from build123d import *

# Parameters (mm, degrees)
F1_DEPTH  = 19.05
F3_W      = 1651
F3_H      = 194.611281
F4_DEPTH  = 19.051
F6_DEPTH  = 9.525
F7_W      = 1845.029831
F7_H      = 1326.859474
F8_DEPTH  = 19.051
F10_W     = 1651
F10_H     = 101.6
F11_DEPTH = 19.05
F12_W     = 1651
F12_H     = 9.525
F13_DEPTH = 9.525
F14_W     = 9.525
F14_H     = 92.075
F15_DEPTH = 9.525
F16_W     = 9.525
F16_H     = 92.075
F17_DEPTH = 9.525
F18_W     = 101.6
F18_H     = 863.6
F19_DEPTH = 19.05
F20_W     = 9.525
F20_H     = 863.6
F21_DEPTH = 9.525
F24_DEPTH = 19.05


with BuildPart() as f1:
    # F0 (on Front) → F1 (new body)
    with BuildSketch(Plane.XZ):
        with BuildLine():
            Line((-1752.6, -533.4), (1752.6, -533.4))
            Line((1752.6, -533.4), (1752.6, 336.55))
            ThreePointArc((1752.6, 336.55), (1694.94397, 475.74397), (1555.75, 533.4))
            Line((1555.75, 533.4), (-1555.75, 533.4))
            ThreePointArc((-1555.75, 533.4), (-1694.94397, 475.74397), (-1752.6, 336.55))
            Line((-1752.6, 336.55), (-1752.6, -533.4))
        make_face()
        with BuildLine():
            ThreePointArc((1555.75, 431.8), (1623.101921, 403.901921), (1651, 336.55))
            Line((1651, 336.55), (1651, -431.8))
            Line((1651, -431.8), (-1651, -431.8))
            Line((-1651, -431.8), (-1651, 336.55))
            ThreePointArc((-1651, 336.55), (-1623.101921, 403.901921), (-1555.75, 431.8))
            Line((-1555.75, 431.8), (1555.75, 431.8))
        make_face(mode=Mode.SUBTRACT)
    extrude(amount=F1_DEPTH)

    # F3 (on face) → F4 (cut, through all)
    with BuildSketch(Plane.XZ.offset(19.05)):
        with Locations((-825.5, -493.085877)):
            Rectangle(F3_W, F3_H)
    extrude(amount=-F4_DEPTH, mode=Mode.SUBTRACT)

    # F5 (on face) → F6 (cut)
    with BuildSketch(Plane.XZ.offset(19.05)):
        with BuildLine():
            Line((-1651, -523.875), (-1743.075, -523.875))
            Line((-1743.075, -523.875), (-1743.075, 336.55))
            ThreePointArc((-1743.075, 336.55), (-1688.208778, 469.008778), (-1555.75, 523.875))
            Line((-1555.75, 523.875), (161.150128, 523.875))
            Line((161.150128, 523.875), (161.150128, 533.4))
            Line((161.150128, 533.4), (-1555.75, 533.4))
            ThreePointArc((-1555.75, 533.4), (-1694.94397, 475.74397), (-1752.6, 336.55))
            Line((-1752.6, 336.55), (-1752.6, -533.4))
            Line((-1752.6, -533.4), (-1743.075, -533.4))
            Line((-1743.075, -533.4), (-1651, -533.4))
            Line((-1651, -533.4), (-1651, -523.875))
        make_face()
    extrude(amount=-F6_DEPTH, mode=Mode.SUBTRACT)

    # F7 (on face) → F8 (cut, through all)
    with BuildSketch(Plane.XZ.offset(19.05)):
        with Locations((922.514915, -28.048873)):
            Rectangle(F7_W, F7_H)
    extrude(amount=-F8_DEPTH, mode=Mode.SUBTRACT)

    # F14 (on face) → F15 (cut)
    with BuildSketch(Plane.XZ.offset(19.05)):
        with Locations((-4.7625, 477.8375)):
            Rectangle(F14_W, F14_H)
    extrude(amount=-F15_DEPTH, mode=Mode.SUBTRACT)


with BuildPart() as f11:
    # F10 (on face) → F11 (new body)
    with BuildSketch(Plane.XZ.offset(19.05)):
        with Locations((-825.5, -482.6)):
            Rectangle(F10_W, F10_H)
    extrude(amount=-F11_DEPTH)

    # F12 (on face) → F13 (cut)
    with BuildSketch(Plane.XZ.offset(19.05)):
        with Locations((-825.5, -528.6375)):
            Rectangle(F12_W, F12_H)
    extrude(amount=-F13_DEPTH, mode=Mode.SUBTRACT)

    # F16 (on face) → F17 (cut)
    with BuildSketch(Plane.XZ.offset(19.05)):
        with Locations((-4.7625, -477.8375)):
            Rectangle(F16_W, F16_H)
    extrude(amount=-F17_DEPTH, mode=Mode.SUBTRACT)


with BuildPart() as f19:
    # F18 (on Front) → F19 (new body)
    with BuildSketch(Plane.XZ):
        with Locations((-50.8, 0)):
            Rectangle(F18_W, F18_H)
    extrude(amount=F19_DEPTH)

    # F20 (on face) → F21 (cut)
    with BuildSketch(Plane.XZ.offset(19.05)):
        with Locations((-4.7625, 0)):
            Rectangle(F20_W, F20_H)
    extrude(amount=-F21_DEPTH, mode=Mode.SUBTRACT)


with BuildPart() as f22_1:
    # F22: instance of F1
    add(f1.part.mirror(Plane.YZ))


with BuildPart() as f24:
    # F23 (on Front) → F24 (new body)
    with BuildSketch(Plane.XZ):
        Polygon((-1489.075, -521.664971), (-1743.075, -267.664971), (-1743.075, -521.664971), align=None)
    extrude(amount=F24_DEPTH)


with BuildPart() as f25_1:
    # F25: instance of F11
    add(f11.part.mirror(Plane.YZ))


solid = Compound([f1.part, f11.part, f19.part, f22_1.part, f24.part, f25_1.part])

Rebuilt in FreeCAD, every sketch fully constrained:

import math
import FreeCAD as App
import Part
import Sketcher

V = App.Vector
Q = App.Units.Quantity


def add_polygon(sketch, points):
    """Adds a closed chain of lines whose ends are joined by coincident constraints."""
    first, n = sketch.GeometryCount, len(points)
    for a, b in zip(points, points[1:] + points[:1]):
        sketch.addGeometry(Part.LineSegment(App.Vector(*a, 0), App.Vector(*b, 0)), False)
    for i in range(n):
        sketch.addConstraint(Sketcher.Constraint("Coincident", first + i, 2, first + (i + 1) % n, 1))

doc = App.newDocument("Part")
body = doc.addObject("PartDesign::Body", "Body")

sketch1 = body.newObject("Sketcher::SketchObject", "Sketch")
sketch1.AttachmentSupport = (doc.getObject("XZ_Plane"), [""])
sketch1.MapMode = "FlatFace"
sketch1.addGeometry(Part.LineSegment(V(-1752.6, -533.4, 0), V(1752.6, -533.4, 0)), False)
sketch1.addGeometry(Part.LineSegment(V(1752.6, -533.4, 0), V(1752.6, 336.55, 0)), False)
sketch1.addGeometry(Part.ArcOfCircle(Part.Circle(V(1555.75, 336.55, 0), V(0, 0, 1), 196.85), math.radians(0), math.radians(90)), False)
sketch1.addGeometry(Part.LineSegment(V(1555.75, 533.4, 0), V(-1555.75, 533.4, 0)), False)
sketch1.addGeometry(Part.ArcOfCircle(Part.Circle(V(-1555.75, 336.55, 0), V(0, 0, 1), 196.85), math.radians(90), math.radians(180)), False)
sketch1.addGeometry(Part.LineSegment(V(-1752.6, 336.55, 0), V(-1752.6, -533.4, 0)), False)
sketch1.addGeometry(Part.LineSegment(V(-1555.75, 431.8, 0), V(1555.75, 431.8, 0)), False)
sketch1.addGeometry(Part.ArcOfCircle(Part.Circle(V(1555.75, 336.55, 0), V(0, 0, 1), 95.25), math.radians(0), math.radians(90)), False)
sketch1.addGeometry(Part.LineSegment(V(1651, 336.55, 0), V(1651, -431.8, 0)), False)
sketch1.addGeometry(Part.LineSegment(V(1651, -431.8, 0), V(-1651, -431.8, 0)), False)
sketch1.addGeometry(Part.LineSegment(V(-1651, -431.8, 0), V(-1651, 336.55, 0)), False)
sketch1.addGeometry(Part.ArcOfCircle(Part.Circle(V(-1555.75, 336.55, 0), V(0, 0, 1), 95.25), math.radians(90), math.radians(180)), False)
sketch1.addConstraint(Sketcher.Constraint("Coincident", 0, 2, 1, 1))
sketch1.addConstraint(Sketcher.Constraint("Tangent", 1, 2, 2, 1))
sketch1.addConstraint(Sketcher.Constraint("Tangent", 2, 2, 3, 1))
sketch1.addConstraint(Sketcher.Constraint("Tangent", 3, 2, 4, 1))
sketch1.addConstraint(Sketcher.Constraint("Tangent", 4, 2, 5, 1))
sketch1.addConstraint(Sketcher.Constraint("Coincident", 5, 2, 0, 1))
sketch1.addConstraint(Sketcher.Constraint("Tangent", 6, 2, 7, 2))
sketch1.addConstraint(Sketcher.Constraint("Tangent", 7, 1, 8, 1))
sketch1.addConstraint(Sketcher.Constraint("Coincident", 8, 2, 9, 1))
sketch1.addConstraint(Sketcher.Constraint("Coincident", 9, 2, 10, 1))
sketch1.addConstraint(Sketcher.Constraint("Tangent", 10, 2, 11, 2))
sketch1.addConstraint(Sketcher.Constraint("Tangent", 11, 1, 6, 1))
sketch1.addConstraint(Sketcher.Constraint("Horizontal", 0))
sketch1.addConstraint(Sketcher.Constraint("Vertical", 1))
sketch1.addConstraint(Sketcher.Constraint("Horizontal", 3))
sketch1.addConstraint(Sketcher.Constraint("Vertical", 5))
sketch1.addConstraint(Sketcher.Constraint("Horizontal", 6))
sketch1.addConstraint(Sketcher.Constraint("Vertical", 8))
sketch1.addConstraint(Sketcher.Constraint("Horizontal", 9))
sketch1.addConstraint(Sketcher.Constraint("Vertical", 10))
sketch1.addConstraint(Sketcher.Constraint("Coincident", 7, 3, 2, 3))
sketch1.addConstraint(Sketcher.Constraint("Coincident", 11, 3, 4, 3))
sketch1.addConstraint(Sketcher.Constraint("Equal", 2, 4))
sketch1.addConstraint(Sketcher.Constraint("DistanceX", 0, 1, 0, 2, Q("138 in")))
sketch1.addConstraint(Sketcher.Constraint("DistanceX", 9, 2, 9, 1, Q("130 in")))
sketch1.addConstraint(Sketcher.Constraint("Radius", 2, Q("7.75 in")))
sketch1.addConstraint(Sketcher.Constraint("DistanceX", -1, 1, 0, 2, Q("69 in")))
sketch1.addConstraint(Sketcher.Constraint("DistanceY", 0, 2, -1, 1, Q("21 in")))
sketch1.addConstraint(Sketcher.Constraint("DistanceY", -1, 1, 2, 2, Q("21 in")))
sketch1.addConstraint(Sketcher.Constraint("DistanceY", 8, 2, -1, 1, Q("17 in")))
pad1 = body.newObject("PartDesign::Pad", "Pad")
pad1.Profile = sketch1
pad1.Length = Q("0.75 in")

sketch2 = body.newObject("Sketcher::SketchObject", "Sketch001")
sketch2.AttachmentSupport = (doc.getObject("XZ_Plane"), [""])
sketch2.MapMode = "FlatFace"
sketch2.AttachmentOffset = App.Placement(V(0, 0, 0.75 * 25.4), App.Rotation())
add_polygon(sketch2, [(-1651, -395.780237), (-1651, -590.391517), (0, -590.391517), (0, -395.780237)])
sketch2.addConstraint(Sketcher.Constraint("Vertical", 0))
sketch2.addConstraint(Sketcher.Constraint("Horizontal", 1))
sketch2.addConstraint(Sketcher.Constraint("Vertical", 2))
sketch2.addConstraint(Sketcher.Constraint("Horizontal", 3))
sketch2.addConstraint(Sketcher.Constraint("PointOnObject", 1, 2, -2))
sketch2.addConstraint(Sketcher.Constraint("DistanceX", 1, 1, 1, 2, Q("65 in")))
sketch2.addConstraint(Sketcher.Constraint("DistanceY", 0, 2, 0, 1, 194.611281))
sketch2.addConstraint(Sketcher.Constraint("DistanceY", 0, 2, -1, 1, 590.391517))
pocket1 = body.newObject("PartDesign::Pocket", "Pocket")
pocket1.Profile = sketch2
pocket1.Type = "ThroughAll"

sketch3 = body.newObject("Sketcher::SketchObject", "Sketch002")
sketch3.AttachmentSupport = (doc.getObject("XZ_Plane"), [""])
sketch3.MapMode = "FlatFace"
sketch3.AttachmentOffset = App.Placement(V(0, 0, 0.75 * 25.4), App.Rotation())
sketch3.addGeometry(Part.LineSegment(V(-1651, -523.875, 0), V(-1743.075, -523.875, 0)), False)
sketch3.addGeometry(Part.LineSegment(V(-1743.075, -523.875, 0), V(-1743.075, 336.55, 0)), False)
sketch3.addGeometry(Part.ArcOfCircle(Part.Circle(V(-1555.750001, 336.550001, 0), V(0, 0, 1), 187.324999), math.radians(90), math.radians(180)), False)
sketch3.addGeometry(Part.LineSegment(V(-1555.75, 523.875, 0), V(161.150128, 523.875, 0)), False)
sketch3.addGeometry(Part.LineSegment(V(161.150128, 523.875, 0), V(161.150128, 533.4, 0)), False)
sketch3.addGeometry(Part.LineSegment(V(161.150128, 533.4, 0), V(-1555.75, 533.4, 0)), False)
sketch3.addGeometry(Part.ArcOfCircle(Part.Circle(V(-1555.75, 336.55, 0), V(0, 0, 1), 196.85), math.radians(90), math.radians(180)), False)
sketch3.addGeometry(Part.LineSegment(V(-1752.6, 336.55, 0), V(-1752.6, -533.4, 0)), False)
sketch3.addGeometry(Part.LineSegment(V(-1752.6, -533.4, 0), V(-1651, -533.4, 0)), False)
sketch3.addGeometry(Part.LineSegment(V(-1651, -533.4, 0), V(-1651, -523.875, 0)), False)
sketch3.addConstraint(Sketcher.Constraint("Coincident", 0, 2, 1, 1))
sketch3.addConstraint(Sketcher.Constraint("Tangent", 1, 2, 2, 2))
sketch3.addConstraint(Sketcher.Constraint("Tangent", 2, 1, 3, 1))
sketch3.addConstraint(Sketcher.Constraint("Coincident", 3, 2, 4, 1))
sketch3.addConstraint(Sketcher.Constraint("Coincident", 4, 2, 5, 1))
sketch3.addConstraint(Sketcher.Constraint("Tangent", 5, 2, 6, 1))
sketch3.addConstraint(Sketcher.Constraint("Tangent", 6, 2, 7, 1))
sketch3.addConstraint(Sketcher.Constraint("Coincident", 7, 2, 8, 1))
sketch3.addConstraint(Sketcher.Constraint("Coincident", 8, 2, 9, 1))
sketch3.addConstraint(Sketcher.Constraint("Coincident", 9, 2, 0, 1))
sketch3.addConstraint(Sketcher.Constraint("Horizontal", 0))
sketch3.addConstraint(Sketcher.Constraint("Vertical", 1))
sketch3.addConstraint(Sketcher.Constraint("Horizontal", 3))
sketch3.addConstraint(Sketcher.Constraint("Vertical", 4))
sketch3.addConstraint(Sketcher.Constraint("Horizontal", 5))
sketch3.addConstraint(Sketcher.Constraint("Vertical", 7))
sketch3.addConstraint(Sketcher.Constraint("Horizontal", 8))
sketch3.addConstraint(Sketcher.Constraint("Vertical", 9))
sketch3.addConstraint(Sketcher.Constraint("Coincident", 6, 3, 2, 3))
sketch3.addConstraint(Sketcher.Constraint("Equal", 4, 9))
sketch3.addConstraint(Sketcher.Constraint("DistanceX", 8, 1, 8, 2, Q("4 in")))
sketch3.addConstraint(Sketcher.Constraint("Radius", 6, Q("7.75 in")))
sketch3.addConstraint(Sketcher.Constraint("DistanceY", -1, 1, 4, 2, Q("21 in")))
sketch3.addConstraint(Sketcher.Constraint("DistanceX", 6, 2, -1, 1, Q("69 in")))
sketch3.addConstraint(Sketcher.Constraint("DistanceY", 7, 2, -1, 1, Q("21 in")))
sketch3.addConstraint(Sketcher.Constraint("Radius", 2, Q("7.375 in")))
sketch3.addConstraint(Sketcher.Constraint("DistanceX", 3, 1, 3, 2, 1716.900128))
pocket2 = body.newObject("PartDesign::Pocket", "Pocket001")
pocket2.Profile = sketch3
pocket2.Length = Q("0.375 in")

sketch4 = body.newObject("Sketcher::SketchObject", "Sketch003")
sketch4.AttachmentSupport = (doc.getObject("XZ_Plane"), [""])
sketch4.MapMode = "FlatFace"
sketch4.AttachmentOffset = App.Placement(V(0, 0, 0.75 * 25.4), App.Rotation())
add_polygon(sketch4, [(0, 635.380864), (0, -691.47861), (1845.02983, -691.47861), (1845.02983, 635.380864)])
sketch4.addConstraint(Sketcher.Constraint("Vertical", 0))
sketch4.addConstraint(Sketcher.Constraint("Horizontal", 1))
sketch4.addConstraint(Sketcher.Constraint("Vertical", 2))
sketch4.addConstraint(Sketcher.Constraint("Horizontal", 3))
sketch4.addConstraint(Sketcher.Constraint("PointOnObject", 0, 2, -2))
sketch4.addConstraint(Sketcher.Constraint("DistanceX", 1, 1, 1, 2, 1845.029831))
sketch4.addConstraint(Sketcher.Constraint("DistanceY", 0, 2, 0, 1, 1326.859474))
sketch4.addConstraint(Sketcher.Constraint("DistanceY", 0, 2, -1, 1, 691.47861))
pocket3 = body.newObject("PartDesign::Pocket", "Pocket002")
pocket3.Profile = sketch4
pocket3.Type = "ThroughAll"

sketch5 = body.newObject("Sketcher::SketchObject", "Sketch004")
sketch5.AttachmentSupport = (doc.getObject("XZ_Plane"), [""])
sketch5.MapMode = "FlatFace"
sketch5.AttachmentOffset = App.Placement(V(0, 0, 0.75 * 25.4), App.Rotation())
add_polygon(sketch5, [(-9.525, 523.875), (-9.525, 431.8), (0, 431.8), (0, 523.875)])
sketch5.addConstraint(Sketcher.Constraint("Vertical", 0))
sketch5.addConstraint(Sketcher.Constraint("Horizontal", 1))
sketch5.addConstraint(Sketcher.Constraint("Vertical", 2))
sketch5.addConstraint(Sketcher.Constraint("Horizontal", 3))
sketch5.addConstraint(Sketcher.Constraint("PointOnObject", 1, 2, -2))
sketch5.addConstraint(Sketcher.Constraint("DistanceY", -1, 1, 0, 2, Q("17 in")))
sketch5.addConstraint(Sketcher.Constraint("DistanceX", 1, 1, 1, 2, Q("0.375 in")))
sketch5.addConstraint(Sketcher.Constraint("DistanceY", 0, 2, 0, 1, Q("3.625 in")))
pocket4 = body.newObject("PartDesign::Pocket", "Pocket003")
pocket4.Profile = sketch5
pocket4.Length = Q("0.375 in")
body2 = doc.addObject("PartDesign::Body", "Body001")

sketch6 = body2.newObject("Sketcher::SketchObject", "Sketch005")
sketch6.AttachmentSupport = (doc.getObject("XZ_Plane001"), [""])
sketch6.MapMode = "FlatFace"
sketch6.AttachmentOffset = App.Placement(V(0, 0, 0.75 * 25.4), App.Rotation())
add_polygon(sketch6, [(-1651, -431.8), (-1651, -533.4), (0, -533.4), (0, -431.8)])
sketch6.addConstraint(Sketcher.Constraint("Vertical", 0))
sketch6.addConstraint(Sketcher.Constraint("Horizontal", 1))
sketch6.addConstraint(Sketcher.Constraint("Vertical", 2))
sketch6.addConstraint(Sketcher.Constraint("Horizontal", 3))
sketch6.addConstraint(Sketcher.Constraint("PointOnObject", 1, 2, -2))
sketch6.addConstraint(Sketcher.Constraint("DistanceX", 1, 1, 1, 2, Q("65 in")))
sketch6.addConstraint(Sketcher.Constraint("DistanceY", 0, 2, 0, 1, Q("4 in")))
sketch6.addConstraint(Sketcher.Constraint("DistanceY", 0, 2, -1, 1, Q("21 in")))
pad2 = body2.newObject("PartDesign::Pad", "Pad001")
pad2.Profile = sketch6
pad2.Length = Q("0.75 in")
pad2.Reversed = True

sketch7 = body2.newObject("Sketcher::SketchObject", "Sketch006")
sketch7.AttachmentSupport = (doc.getObject("XZ_Plane001"), [""])
sketch7.MapMode = "FlatFace"
sketch7.AttachmentOffset = App.Placement(V(0, 0, 0.75 * 25.4), App.Rotation())
add_polygon(sketch7, [(-1651, -523.875), (-1651, -533.4), (0, -533.4), (0, -523.875)])
sketch7.addConstraint(Sketcher.Constraint("Vertical", 0))
sketch7.addConstraint(Sketcher.Constraint("Horizontal", 1))
sketch7.addConstraint(Sketcher.Constraint("Vertical", 2))
sketch7.addConstraint(Sketcher.Constraint("Horizontal", 3))
sketch7.addConstraint(Sketcher.Constraint("PointOnObject", 1, 2, -2))
sketch7.addConstraint(Sketcher.Constraint("DistanceX", 1, 1, 1, 2, Q("65 in")))
sketch7.addConstraint(Sketcher.Constraint("DistanceY", 0, 2, -1, 1, Q("21 in")))
sketch7.addConstraint(Sketcher.Constraint("DistanceY", 0, 2, 0, 1, Q("0.375 in")))
pocket5 = body2.newObject("PartDesign::Pocket", "Pocket004")
pocket5.Profile = sketch7
pocket5.Length = Q("0.375 in")

sketch8 = body2.newObject("Sketcher::SketchObject", "Sketch007")
sketch8.AttachmentSupport = (doc.getObject("XZ_Plane001"), [""])
sketch8.MapMode = "FlatFace"
sketch8.AttachmentOffset = App.Placement(V(0, 0, 0.75 * 25.4), App.Rotation())
add_polygon(sketch8, [(-9.525, -431.8), (-9.525, -523.875), (0, -523.875), (0, -431.8)])
sketch8.addConstraint(Sketcher.Constraint("Vertical", 0))
sketch8.addConstraint(Sketcher.Constraint("Horizontal", 1))
sketch8.addConstraint(Sketcher.Constraint("Vertical", 2))
sketch8.addConstraint(Sketcher.Constraint("Horizontal", 3))
sketch8.addConstraint(Sketcher.Constraint("PointOnObject", 1, 2, -2))
sketch8.addConstraint(Sketcher.Constraint("DistanceY", 2, 2, -1, 1, Q("17 in")))
sketch8.addConstraint(Sketcher.Constraint("DistanceX", 1, 1, 1, 2, Q("0.375 in")))
sketch8.addConstraint(Sketcher.Constraint("DistanceY", 0, 2, 0, 1, Q("3.625 in")))
pocket6 = body2.newObject("PartDesign::Pocket", "Pocket005")
pocket6.Profile = sketch8
pocket6.Length = Q("0.375 in")
body3 = doc.addObject("PartDesign::Body", "Body002")

sketch9 = body3.newObject("Sketcher::SketchObject", "Sketch008")
sketch9.AttachmentSupport = (doc.getObject("XZ_Plane002"), [""])
sketch9.MapMode = "FlatFace"
add_polygon(sketch9, [(-101.6, 431.8), (-101.6, -431.8), (0, -431.8), (0, 431.8)])
sketch9.addConstraint(Sketcher.Constraint("Vertical", 0))
sketch9.addConstraint(Sketcher.Constraint("Horizontal", 1))
sketch9.addConstraint(Sketcher.Constraint("Vertical", 2))
sketch9.addConstraint(Sketcher.Constraint("Horizontal", 3))
sketch9.addConstraint(Sketcher.Constraint("Symmetric", 1, 2, 2, 2, -1, 1))
sketch9.addConstraint(Sketcher.Constraint("DistanceX", 1, 1, 1, 2, Q("4 in")))
sketch9.addConstraint(Sketcher.Constraint("DistanceY", 0, 2, 0, 1, Q("34 in")))
pad3 = body3.newObject("PartDesign::Pad", "Pad002")
pad3.Profile = sketch9
pad3.Length = Q("0.75 in")

sketch10 = body3.newObject("Sketcher::SketchObject", "Sketch009")
sketch10.AttachmentSupport = (doc.getObject("XZ_Plane002"), [""])
sketch10.MapMode = "FlatFace"
sketch10.AttachmentOffset = App.Placement(V(0, 0, 0.75 * 25.4), App.Rotation())
add_polygon(sketch10, [(-9.525, 431.8), (-9.525, -431.8), (0, -431.8), (0, 431.8)])
sketch10.addConstraint(Sketcher.Constraint("Vertical", 0))
sketch10.addConstraint(Sketcher.Constraint("Horizontal", 1))
sketch10.addConstraint(Sketcher.Constraint("Vertical", 2))
sketch10.addConstraint(Sketcher.Constraint("Horizontal", 3))
sketch10.addConstraint(Sketcher.Constraint("Symmetric", 1, 2, 2, 2, -1, 1))
sketch10.addConstraint(Sketcher.Constraint("DistanceY", 0, 2, 0, 1, Q("34 in")))
sketch10.addConstraint(Sketcher.Constraint("DistanceX", 1, 1, 1, 2, Q("0.375 in")))
pocket7 = body3.newObject("PartDesign::Pocket", "Pocket006")
pocket7.Profile = sketch10
pocket7.Length = Q("0.375 in")
body4 = doc.addObject("PartDesign::Body", "Body003")
doc.recompute()

mirroring = doc.addObject("Part::Mirroring", "Mirroring")
mirroring.Source = body
mirroring.Base = V(0, 0, 0)
mirroring.Normal = V(1, 0, 0)
body4.BaseFeature = mirroring
doc.recompute()
body5 = doc.addObject("PartDesign::Body", "Body004")

sketch11 = body5.newObject("Sketcher::SketchObject", "Sketch010")
sketch11.AttachmentSupport = (doc.getObject("XZ_Plane004"), [""])
sketch11.MapMode = "FlatFace"
add_polygon(sketch11, [(-1489.075, -521.664971), (-1743.075, -267.664971), (-1743.075, -521.664971)])
sketch11.addConstraint(Sketcher.Constraint("Vertical", 1))
sketch11.addConstraint(Sketcher.Constraint("Horizontal", 2))
sketch11.addConstraint(Sketcher.Constraint("Equal", 2, 1))
sketch11.addConstraint(Sketcher.Constraint("DistanceX", 2, 1, 2, 2, Q("10 in")))
sketch11.addConstraint(Sketcher.Constraint("DistanceX", 0, 2, -1, 1, Q("68.625 in")))
sketch11.addConstraint(Sketcher.Constraint("DistanceY", 0, 2, -1, 1, 267.664971))
pad4 = body5.newObject("PartDesign::Pad", "Pad003")
pad4.Profile = sketch11
pad4.Length = Q("0.75 in")
body6 = doc.addObject("PartDesign::Body", "Body005")
doc.recompute()

mirroring2 = doc.addObject("Part::Mirroring", "Mirroring001")
mirroring2.Source = body2
mirroring2.Base = V(0, 0, 0)
mirroring2.Normal = V(1, 0, 0)
body6.BaseFeature = mirroring2
doc.recompute()
mirroring.Visibility = False
mirroring2.Visibility = False

doc.recompute()
